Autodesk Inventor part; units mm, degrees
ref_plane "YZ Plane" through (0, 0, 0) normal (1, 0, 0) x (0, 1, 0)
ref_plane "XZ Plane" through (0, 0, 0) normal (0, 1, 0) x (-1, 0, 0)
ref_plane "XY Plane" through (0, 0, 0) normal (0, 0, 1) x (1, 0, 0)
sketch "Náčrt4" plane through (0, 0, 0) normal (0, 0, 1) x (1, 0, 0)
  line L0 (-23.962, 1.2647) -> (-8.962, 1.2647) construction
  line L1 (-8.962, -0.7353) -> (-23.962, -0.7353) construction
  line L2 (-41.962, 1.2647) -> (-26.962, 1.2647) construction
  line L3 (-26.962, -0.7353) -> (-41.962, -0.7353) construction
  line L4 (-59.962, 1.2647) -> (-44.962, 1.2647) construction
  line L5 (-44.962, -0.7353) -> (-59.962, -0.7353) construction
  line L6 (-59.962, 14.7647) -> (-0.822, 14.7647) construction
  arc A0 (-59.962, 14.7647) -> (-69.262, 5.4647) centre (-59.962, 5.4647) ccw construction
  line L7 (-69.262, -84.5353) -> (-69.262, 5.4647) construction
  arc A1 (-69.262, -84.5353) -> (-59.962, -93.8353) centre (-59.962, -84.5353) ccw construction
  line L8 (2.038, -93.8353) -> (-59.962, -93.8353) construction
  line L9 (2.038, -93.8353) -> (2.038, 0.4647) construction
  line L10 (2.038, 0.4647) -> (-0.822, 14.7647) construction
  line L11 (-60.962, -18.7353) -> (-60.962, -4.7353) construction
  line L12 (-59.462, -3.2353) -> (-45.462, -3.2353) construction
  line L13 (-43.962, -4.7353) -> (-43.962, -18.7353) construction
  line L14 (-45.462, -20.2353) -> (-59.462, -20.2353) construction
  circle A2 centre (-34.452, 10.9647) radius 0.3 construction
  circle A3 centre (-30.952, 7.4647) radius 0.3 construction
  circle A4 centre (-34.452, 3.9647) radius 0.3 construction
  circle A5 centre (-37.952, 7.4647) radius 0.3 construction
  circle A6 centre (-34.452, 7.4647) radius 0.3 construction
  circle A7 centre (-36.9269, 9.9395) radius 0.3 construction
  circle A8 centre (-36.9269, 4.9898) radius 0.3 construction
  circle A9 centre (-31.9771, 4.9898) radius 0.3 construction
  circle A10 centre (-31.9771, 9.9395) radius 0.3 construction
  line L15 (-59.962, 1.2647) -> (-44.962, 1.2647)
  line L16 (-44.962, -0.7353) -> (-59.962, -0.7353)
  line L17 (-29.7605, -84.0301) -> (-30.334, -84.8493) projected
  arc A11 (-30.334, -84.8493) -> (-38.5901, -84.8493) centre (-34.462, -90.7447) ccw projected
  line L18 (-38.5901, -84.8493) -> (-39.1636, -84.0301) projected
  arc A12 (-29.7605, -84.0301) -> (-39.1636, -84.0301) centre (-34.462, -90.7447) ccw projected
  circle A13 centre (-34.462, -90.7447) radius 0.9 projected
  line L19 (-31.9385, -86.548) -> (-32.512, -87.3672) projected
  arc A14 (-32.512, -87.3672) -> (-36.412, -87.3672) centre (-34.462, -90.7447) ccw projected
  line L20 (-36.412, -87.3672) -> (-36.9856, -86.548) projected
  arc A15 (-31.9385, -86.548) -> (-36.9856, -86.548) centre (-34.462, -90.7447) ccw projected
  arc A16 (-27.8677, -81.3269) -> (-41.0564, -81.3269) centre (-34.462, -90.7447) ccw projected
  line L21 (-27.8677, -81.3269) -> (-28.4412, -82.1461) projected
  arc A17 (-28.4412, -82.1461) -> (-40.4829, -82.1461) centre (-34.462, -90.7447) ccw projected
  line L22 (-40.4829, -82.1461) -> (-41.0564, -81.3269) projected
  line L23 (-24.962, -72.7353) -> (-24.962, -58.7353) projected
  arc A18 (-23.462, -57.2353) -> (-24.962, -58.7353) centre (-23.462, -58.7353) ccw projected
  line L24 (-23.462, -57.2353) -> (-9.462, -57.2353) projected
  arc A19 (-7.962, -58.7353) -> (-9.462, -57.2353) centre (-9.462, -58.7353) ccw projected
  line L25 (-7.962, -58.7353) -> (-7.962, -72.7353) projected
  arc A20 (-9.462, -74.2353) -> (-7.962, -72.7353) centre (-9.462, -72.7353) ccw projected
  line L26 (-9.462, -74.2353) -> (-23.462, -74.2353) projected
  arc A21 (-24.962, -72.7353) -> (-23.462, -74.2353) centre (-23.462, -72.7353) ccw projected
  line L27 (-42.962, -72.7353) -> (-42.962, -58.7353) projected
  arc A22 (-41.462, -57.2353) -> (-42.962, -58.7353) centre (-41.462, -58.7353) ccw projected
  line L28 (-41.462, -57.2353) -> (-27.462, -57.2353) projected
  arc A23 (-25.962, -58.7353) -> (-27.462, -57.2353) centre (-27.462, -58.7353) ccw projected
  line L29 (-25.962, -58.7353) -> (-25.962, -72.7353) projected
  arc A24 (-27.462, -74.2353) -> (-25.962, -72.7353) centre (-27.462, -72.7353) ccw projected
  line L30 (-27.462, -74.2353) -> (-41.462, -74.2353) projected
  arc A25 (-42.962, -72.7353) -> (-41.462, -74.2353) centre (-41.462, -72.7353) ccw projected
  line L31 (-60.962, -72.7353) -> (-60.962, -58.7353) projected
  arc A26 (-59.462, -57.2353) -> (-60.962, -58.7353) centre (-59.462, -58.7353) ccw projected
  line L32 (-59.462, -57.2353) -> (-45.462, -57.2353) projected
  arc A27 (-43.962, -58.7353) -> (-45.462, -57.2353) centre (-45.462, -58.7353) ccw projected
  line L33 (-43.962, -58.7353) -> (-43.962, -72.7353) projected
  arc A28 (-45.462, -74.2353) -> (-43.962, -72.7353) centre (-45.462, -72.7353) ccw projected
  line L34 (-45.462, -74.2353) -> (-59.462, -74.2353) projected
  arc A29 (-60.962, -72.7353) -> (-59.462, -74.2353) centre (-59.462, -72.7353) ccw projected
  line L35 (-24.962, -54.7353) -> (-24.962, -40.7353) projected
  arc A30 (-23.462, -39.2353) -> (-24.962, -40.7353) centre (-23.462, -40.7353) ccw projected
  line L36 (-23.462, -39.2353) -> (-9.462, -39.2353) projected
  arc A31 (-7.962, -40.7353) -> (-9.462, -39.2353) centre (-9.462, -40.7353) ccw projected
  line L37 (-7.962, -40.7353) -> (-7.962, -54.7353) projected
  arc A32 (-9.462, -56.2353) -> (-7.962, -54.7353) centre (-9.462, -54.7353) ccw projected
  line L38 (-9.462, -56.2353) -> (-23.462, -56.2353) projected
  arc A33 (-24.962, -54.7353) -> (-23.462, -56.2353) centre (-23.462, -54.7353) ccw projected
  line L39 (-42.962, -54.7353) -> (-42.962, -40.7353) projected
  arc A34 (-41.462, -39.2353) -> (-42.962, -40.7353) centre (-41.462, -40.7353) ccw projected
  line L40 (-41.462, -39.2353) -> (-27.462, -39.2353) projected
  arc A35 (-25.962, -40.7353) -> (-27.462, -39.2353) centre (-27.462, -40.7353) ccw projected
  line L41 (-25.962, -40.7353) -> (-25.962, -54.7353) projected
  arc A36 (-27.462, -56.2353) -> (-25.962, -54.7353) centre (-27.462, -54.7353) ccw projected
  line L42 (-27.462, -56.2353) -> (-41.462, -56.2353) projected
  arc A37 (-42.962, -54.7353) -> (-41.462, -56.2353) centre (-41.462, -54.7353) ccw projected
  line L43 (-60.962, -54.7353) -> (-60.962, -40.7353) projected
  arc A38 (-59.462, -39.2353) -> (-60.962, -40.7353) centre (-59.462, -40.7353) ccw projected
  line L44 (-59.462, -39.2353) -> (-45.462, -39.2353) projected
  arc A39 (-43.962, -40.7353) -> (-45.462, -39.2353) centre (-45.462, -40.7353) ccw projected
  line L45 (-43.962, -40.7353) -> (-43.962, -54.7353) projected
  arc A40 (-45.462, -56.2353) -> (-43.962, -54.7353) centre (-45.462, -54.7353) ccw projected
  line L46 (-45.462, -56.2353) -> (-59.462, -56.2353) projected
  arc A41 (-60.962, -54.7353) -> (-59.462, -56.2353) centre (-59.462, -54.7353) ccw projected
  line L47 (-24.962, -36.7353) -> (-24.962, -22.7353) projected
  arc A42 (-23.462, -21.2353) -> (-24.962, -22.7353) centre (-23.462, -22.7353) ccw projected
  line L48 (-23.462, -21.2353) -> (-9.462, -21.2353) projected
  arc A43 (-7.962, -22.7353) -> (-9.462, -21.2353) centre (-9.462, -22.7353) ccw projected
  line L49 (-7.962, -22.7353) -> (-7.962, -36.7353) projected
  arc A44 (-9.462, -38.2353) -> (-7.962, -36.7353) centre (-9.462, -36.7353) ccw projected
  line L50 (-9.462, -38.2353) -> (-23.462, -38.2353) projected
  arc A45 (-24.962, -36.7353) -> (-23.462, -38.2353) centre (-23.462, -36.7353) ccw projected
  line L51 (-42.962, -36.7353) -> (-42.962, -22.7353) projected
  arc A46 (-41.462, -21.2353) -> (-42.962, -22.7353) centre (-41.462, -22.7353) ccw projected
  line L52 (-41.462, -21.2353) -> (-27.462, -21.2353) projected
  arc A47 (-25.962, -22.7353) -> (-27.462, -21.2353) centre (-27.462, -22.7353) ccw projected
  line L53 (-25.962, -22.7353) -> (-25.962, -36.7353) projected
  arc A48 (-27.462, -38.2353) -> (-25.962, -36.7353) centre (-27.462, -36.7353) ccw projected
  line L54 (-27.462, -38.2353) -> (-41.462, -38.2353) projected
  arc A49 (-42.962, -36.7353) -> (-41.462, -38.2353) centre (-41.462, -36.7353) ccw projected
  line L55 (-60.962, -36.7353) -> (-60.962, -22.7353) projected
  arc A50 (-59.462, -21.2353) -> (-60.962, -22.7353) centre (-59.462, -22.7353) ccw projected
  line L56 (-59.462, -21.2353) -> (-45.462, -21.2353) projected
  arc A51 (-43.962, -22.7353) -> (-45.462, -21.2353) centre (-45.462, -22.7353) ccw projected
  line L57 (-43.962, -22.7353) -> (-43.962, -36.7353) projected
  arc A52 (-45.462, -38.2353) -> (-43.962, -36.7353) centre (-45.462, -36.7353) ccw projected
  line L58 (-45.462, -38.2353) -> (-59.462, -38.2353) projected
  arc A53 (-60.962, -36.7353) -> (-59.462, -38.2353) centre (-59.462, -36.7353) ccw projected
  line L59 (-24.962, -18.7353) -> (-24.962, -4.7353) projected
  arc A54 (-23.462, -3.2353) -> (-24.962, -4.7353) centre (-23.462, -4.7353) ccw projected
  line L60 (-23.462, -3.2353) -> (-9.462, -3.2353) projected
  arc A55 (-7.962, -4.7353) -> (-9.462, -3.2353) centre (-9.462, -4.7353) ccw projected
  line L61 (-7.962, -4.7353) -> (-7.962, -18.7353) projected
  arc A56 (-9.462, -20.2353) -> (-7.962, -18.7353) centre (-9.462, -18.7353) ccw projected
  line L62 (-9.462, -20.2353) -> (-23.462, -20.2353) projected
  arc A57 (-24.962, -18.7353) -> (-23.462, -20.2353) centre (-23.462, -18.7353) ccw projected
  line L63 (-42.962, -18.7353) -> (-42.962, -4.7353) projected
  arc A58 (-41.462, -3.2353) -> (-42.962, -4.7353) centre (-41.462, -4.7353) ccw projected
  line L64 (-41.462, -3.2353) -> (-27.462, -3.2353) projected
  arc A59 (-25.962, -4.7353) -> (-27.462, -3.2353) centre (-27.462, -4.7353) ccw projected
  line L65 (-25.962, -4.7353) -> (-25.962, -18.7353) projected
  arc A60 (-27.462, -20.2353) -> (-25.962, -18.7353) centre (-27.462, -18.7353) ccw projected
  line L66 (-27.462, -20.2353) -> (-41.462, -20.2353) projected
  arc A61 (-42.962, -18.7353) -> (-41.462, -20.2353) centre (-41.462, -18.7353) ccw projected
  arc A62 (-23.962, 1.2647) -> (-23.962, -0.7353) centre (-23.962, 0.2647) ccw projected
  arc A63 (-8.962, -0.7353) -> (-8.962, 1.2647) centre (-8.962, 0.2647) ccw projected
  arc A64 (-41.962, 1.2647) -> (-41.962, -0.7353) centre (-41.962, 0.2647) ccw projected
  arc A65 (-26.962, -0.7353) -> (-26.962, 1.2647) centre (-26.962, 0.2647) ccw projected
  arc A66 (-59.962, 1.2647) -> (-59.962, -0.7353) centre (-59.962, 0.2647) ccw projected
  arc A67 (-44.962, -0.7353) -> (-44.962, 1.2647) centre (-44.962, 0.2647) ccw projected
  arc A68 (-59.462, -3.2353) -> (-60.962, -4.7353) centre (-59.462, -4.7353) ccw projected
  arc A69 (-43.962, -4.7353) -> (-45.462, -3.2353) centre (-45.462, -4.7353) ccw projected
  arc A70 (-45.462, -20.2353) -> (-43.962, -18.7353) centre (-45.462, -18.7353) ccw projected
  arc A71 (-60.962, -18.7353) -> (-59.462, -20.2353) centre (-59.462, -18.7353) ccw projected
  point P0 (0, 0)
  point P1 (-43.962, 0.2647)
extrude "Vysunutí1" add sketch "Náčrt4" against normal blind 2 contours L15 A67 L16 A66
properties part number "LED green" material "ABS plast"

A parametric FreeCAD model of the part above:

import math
import FreeCAD as App
import Part
import Sketcher

doc = App.newDocument("Part")
body = doc.addObject("PartDesign::Body", "Body")

# Sketch on XY plane
sketch1 = body.newObject("Sketcher::SketchObject", "Sketch")
sketch1.AttachmentSupport = (doc.getObject("XY_Plane"), [""])
sketch1.MapMode = "FlatFace"
sketch1.addGeometry([
    Part.LineSegment(App.Vector(-44.962, 1.2647, 0), App.Vector(-59.962, 1.2647, 0)),
    Part.ArcOfCircle(Part.Circle(App.Vector(-59.962, 0.2647, 0), App.Vector(0, 0, 1), 1), math.radians(90), math.radians(270)),
    Part.LineSegment(App.Vector(-59.962, -0.7353, 0), App.Vector(-44.962, -0.7353, 0)),
    Part.ArcOfCircle(Part.Circle(App.Vector(-44.962, 0.2647, 0), App.Vector(0, 0, 1), 1), math.radians(-90), math.radians(90)),
], False)
sketch1.addConstraint([
    Sketcher.Constraint("Tangent", 0, 2, 1, 1),
    Sketcher.Constraint("Tangent", 1, 2, 2, 1),
    Sketcher.Constraint("Tangent", 2, 2, 3, 1),
    Sketcher.Constraint("Tangent", 3, 2, 0, 1),
    Sketcher.Constraint("Horizontal", 0),
    Sketcher.Constraint("Horizontal", 2),
    Sketcher.Constraint("Radius", 1, 1.0),
    Sketcher.Constraint("DistanceX", 0, 2, 0, 1, 15.0),
    Sketcher.Constraint("DistanceX", 1, 3, -1, 1, 59.962),
    Sketcher.Constraint("DistanceY", -1, 1, 1, 3, 0.2647),
])
pad1 = body.newObject("PartDesign::Pad", "Pad")
pad1.Profile = sketch1
pad1.Length = 2
pad1.Reversed = True

doc.recompute()
